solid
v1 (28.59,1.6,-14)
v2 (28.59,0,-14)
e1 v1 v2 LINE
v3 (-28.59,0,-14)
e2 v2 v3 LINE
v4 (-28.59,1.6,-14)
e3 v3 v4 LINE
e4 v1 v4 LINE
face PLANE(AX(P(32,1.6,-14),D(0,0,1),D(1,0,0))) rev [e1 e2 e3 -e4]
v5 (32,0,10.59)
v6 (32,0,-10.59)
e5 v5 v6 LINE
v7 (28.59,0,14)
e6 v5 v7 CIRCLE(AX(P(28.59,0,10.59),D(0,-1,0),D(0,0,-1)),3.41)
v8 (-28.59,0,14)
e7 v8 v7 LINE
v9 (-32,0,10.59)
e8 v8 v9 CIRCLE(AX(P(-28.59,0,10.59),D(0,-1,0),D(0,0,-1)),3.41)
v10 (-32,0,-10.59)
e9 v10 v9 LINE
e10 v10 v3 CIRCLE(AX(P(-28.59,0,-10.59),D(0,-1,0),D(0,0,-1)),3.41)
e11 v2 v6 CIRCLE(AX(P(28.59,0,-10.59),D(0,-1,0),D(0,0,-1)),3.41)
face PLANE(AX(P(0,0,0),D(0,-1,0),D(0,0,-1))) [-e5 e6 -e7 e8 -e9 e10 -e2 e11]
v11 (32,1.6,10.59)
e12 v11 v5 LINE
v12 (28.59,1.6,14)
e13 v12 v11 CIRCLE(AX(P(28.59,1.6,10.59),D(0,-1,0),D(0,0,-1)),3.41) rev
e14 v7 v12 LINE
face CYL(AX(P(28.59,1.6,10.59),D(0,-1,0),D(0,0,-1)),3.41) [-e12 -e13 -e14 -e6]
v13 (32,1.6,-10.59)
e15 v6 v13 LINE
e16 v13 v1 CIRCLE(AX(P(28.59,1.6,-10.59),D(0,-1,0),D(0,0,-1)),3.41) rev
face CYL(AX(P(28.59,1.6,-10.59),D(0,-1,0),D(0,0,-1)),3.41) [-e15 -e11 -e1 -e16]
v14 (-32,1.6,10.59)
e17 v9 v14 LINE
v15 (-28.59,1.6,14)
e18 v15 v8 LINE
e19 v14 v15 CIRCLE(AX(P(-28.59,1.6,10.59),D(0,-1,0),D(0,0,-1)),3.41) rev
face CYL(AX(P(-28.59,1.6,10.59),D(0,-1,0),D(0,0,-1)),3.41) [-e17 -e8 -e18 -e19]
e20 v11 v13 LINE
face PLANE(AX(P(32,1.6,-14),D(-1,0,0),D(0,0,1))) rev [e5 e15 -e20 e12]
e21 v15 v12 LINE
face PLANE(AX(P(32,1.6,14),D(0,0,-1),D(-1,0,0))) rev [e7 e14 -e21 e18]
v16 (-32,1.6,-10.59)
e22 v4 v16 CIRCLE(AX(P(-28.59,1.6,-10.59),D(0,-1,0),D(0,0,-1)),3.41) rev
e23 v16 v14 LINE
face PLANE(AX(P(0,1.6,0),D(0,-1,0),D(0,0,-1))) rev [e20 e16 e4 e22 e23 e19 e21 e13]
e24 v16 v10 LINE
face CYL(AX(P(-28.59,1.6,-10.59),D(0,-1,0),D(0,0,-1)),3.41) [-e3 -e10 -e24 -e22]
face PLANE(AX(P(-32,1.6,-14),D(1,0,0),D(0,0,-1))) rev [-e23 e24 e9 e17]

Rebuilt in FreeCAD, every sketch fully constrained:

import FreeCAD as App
import Part
import Sketcher

V = App.Vector


def edges_at(feature, points):
    """Names of the edges that pass closest to the given points."""
    edges = feature.Shape.Edges
    near = lambda p: min(range(len(edges)), key=lambda i: edges[i].distToShape(Part.Vertex(*p))[0])
    return sorted({f"Edge{near(p) + 1}" for p in points})


def add_polygon(sketch, points):
    """Adds a closed chain of lines whose ends are joined by coincident constraints."""
    first, n = sketch.GeometryCount, len(points)
    for a, b in zip(points, points[1:] + points[:1]):
        sketch.addGeometry(Part.LineSegment(App.Vector(*a, 0), App.Vector(*b, 0)), False)
    for i in range(n):
        sketch.addConstraint(Sketcher.Constraint("Coincident", first + i, 2, first + (i + 1) % n, 1))

doc = App.newDocument("Part")
body = doc.addObject("PartDesign::Body", "Body")

sketch1 = body.newObject("Sketcher::SketchObject", "Sketch")
sketch1.AttachmentSupport = (doc.getObject("XZ_Plane"), [""])
sketch1.MapMode = "FlatFace"
add_polygon(sketch1, [(-32, -14), (-32, 14), (32, 14), (32, -14)])
sketch1.addConstraint(Sketcher.Constraint("Vertical", 0))
sketch1.addConstraint(Sketcher.Constraint("Horizontal", 1))
sketch1.addConstraint(Sketcher.Constraint("Vertical", 2))
sketch1.addConstraint(Sketcher.Constraint("Horizontal", 3))
sketch1.addConstraint(Sketcher.Constraint("Symmetric", 0, 2, 2, 2, -1, 1))
sketch1.addConstraint(Sketcher.Constraint("DistanceX", 1, 1, 1, 2, 64.0))
sketch1.addConstraint(Sketcher.Constraint("DistanceY", 0, 1, 0, 2, 28.0))
pad1 = body.newObject("PartDesign::Pad", "Pad")
pad1.Profile = sketch1
pad1.Length = 1.6
pad1.Reversed = True
doc.recompute()

fillet = body.newObject("PartDesign::Fillet", "Fillet")
fillet.Base = (pad1, edges_at(pad1, [
    (-32, 0.8, -14),
    (32, 0.8, -14),
    (32, 0.8, 14),
    (-32, 0.8, 14),
]))
fillet.Radius = 3.41

doc.recompute()
